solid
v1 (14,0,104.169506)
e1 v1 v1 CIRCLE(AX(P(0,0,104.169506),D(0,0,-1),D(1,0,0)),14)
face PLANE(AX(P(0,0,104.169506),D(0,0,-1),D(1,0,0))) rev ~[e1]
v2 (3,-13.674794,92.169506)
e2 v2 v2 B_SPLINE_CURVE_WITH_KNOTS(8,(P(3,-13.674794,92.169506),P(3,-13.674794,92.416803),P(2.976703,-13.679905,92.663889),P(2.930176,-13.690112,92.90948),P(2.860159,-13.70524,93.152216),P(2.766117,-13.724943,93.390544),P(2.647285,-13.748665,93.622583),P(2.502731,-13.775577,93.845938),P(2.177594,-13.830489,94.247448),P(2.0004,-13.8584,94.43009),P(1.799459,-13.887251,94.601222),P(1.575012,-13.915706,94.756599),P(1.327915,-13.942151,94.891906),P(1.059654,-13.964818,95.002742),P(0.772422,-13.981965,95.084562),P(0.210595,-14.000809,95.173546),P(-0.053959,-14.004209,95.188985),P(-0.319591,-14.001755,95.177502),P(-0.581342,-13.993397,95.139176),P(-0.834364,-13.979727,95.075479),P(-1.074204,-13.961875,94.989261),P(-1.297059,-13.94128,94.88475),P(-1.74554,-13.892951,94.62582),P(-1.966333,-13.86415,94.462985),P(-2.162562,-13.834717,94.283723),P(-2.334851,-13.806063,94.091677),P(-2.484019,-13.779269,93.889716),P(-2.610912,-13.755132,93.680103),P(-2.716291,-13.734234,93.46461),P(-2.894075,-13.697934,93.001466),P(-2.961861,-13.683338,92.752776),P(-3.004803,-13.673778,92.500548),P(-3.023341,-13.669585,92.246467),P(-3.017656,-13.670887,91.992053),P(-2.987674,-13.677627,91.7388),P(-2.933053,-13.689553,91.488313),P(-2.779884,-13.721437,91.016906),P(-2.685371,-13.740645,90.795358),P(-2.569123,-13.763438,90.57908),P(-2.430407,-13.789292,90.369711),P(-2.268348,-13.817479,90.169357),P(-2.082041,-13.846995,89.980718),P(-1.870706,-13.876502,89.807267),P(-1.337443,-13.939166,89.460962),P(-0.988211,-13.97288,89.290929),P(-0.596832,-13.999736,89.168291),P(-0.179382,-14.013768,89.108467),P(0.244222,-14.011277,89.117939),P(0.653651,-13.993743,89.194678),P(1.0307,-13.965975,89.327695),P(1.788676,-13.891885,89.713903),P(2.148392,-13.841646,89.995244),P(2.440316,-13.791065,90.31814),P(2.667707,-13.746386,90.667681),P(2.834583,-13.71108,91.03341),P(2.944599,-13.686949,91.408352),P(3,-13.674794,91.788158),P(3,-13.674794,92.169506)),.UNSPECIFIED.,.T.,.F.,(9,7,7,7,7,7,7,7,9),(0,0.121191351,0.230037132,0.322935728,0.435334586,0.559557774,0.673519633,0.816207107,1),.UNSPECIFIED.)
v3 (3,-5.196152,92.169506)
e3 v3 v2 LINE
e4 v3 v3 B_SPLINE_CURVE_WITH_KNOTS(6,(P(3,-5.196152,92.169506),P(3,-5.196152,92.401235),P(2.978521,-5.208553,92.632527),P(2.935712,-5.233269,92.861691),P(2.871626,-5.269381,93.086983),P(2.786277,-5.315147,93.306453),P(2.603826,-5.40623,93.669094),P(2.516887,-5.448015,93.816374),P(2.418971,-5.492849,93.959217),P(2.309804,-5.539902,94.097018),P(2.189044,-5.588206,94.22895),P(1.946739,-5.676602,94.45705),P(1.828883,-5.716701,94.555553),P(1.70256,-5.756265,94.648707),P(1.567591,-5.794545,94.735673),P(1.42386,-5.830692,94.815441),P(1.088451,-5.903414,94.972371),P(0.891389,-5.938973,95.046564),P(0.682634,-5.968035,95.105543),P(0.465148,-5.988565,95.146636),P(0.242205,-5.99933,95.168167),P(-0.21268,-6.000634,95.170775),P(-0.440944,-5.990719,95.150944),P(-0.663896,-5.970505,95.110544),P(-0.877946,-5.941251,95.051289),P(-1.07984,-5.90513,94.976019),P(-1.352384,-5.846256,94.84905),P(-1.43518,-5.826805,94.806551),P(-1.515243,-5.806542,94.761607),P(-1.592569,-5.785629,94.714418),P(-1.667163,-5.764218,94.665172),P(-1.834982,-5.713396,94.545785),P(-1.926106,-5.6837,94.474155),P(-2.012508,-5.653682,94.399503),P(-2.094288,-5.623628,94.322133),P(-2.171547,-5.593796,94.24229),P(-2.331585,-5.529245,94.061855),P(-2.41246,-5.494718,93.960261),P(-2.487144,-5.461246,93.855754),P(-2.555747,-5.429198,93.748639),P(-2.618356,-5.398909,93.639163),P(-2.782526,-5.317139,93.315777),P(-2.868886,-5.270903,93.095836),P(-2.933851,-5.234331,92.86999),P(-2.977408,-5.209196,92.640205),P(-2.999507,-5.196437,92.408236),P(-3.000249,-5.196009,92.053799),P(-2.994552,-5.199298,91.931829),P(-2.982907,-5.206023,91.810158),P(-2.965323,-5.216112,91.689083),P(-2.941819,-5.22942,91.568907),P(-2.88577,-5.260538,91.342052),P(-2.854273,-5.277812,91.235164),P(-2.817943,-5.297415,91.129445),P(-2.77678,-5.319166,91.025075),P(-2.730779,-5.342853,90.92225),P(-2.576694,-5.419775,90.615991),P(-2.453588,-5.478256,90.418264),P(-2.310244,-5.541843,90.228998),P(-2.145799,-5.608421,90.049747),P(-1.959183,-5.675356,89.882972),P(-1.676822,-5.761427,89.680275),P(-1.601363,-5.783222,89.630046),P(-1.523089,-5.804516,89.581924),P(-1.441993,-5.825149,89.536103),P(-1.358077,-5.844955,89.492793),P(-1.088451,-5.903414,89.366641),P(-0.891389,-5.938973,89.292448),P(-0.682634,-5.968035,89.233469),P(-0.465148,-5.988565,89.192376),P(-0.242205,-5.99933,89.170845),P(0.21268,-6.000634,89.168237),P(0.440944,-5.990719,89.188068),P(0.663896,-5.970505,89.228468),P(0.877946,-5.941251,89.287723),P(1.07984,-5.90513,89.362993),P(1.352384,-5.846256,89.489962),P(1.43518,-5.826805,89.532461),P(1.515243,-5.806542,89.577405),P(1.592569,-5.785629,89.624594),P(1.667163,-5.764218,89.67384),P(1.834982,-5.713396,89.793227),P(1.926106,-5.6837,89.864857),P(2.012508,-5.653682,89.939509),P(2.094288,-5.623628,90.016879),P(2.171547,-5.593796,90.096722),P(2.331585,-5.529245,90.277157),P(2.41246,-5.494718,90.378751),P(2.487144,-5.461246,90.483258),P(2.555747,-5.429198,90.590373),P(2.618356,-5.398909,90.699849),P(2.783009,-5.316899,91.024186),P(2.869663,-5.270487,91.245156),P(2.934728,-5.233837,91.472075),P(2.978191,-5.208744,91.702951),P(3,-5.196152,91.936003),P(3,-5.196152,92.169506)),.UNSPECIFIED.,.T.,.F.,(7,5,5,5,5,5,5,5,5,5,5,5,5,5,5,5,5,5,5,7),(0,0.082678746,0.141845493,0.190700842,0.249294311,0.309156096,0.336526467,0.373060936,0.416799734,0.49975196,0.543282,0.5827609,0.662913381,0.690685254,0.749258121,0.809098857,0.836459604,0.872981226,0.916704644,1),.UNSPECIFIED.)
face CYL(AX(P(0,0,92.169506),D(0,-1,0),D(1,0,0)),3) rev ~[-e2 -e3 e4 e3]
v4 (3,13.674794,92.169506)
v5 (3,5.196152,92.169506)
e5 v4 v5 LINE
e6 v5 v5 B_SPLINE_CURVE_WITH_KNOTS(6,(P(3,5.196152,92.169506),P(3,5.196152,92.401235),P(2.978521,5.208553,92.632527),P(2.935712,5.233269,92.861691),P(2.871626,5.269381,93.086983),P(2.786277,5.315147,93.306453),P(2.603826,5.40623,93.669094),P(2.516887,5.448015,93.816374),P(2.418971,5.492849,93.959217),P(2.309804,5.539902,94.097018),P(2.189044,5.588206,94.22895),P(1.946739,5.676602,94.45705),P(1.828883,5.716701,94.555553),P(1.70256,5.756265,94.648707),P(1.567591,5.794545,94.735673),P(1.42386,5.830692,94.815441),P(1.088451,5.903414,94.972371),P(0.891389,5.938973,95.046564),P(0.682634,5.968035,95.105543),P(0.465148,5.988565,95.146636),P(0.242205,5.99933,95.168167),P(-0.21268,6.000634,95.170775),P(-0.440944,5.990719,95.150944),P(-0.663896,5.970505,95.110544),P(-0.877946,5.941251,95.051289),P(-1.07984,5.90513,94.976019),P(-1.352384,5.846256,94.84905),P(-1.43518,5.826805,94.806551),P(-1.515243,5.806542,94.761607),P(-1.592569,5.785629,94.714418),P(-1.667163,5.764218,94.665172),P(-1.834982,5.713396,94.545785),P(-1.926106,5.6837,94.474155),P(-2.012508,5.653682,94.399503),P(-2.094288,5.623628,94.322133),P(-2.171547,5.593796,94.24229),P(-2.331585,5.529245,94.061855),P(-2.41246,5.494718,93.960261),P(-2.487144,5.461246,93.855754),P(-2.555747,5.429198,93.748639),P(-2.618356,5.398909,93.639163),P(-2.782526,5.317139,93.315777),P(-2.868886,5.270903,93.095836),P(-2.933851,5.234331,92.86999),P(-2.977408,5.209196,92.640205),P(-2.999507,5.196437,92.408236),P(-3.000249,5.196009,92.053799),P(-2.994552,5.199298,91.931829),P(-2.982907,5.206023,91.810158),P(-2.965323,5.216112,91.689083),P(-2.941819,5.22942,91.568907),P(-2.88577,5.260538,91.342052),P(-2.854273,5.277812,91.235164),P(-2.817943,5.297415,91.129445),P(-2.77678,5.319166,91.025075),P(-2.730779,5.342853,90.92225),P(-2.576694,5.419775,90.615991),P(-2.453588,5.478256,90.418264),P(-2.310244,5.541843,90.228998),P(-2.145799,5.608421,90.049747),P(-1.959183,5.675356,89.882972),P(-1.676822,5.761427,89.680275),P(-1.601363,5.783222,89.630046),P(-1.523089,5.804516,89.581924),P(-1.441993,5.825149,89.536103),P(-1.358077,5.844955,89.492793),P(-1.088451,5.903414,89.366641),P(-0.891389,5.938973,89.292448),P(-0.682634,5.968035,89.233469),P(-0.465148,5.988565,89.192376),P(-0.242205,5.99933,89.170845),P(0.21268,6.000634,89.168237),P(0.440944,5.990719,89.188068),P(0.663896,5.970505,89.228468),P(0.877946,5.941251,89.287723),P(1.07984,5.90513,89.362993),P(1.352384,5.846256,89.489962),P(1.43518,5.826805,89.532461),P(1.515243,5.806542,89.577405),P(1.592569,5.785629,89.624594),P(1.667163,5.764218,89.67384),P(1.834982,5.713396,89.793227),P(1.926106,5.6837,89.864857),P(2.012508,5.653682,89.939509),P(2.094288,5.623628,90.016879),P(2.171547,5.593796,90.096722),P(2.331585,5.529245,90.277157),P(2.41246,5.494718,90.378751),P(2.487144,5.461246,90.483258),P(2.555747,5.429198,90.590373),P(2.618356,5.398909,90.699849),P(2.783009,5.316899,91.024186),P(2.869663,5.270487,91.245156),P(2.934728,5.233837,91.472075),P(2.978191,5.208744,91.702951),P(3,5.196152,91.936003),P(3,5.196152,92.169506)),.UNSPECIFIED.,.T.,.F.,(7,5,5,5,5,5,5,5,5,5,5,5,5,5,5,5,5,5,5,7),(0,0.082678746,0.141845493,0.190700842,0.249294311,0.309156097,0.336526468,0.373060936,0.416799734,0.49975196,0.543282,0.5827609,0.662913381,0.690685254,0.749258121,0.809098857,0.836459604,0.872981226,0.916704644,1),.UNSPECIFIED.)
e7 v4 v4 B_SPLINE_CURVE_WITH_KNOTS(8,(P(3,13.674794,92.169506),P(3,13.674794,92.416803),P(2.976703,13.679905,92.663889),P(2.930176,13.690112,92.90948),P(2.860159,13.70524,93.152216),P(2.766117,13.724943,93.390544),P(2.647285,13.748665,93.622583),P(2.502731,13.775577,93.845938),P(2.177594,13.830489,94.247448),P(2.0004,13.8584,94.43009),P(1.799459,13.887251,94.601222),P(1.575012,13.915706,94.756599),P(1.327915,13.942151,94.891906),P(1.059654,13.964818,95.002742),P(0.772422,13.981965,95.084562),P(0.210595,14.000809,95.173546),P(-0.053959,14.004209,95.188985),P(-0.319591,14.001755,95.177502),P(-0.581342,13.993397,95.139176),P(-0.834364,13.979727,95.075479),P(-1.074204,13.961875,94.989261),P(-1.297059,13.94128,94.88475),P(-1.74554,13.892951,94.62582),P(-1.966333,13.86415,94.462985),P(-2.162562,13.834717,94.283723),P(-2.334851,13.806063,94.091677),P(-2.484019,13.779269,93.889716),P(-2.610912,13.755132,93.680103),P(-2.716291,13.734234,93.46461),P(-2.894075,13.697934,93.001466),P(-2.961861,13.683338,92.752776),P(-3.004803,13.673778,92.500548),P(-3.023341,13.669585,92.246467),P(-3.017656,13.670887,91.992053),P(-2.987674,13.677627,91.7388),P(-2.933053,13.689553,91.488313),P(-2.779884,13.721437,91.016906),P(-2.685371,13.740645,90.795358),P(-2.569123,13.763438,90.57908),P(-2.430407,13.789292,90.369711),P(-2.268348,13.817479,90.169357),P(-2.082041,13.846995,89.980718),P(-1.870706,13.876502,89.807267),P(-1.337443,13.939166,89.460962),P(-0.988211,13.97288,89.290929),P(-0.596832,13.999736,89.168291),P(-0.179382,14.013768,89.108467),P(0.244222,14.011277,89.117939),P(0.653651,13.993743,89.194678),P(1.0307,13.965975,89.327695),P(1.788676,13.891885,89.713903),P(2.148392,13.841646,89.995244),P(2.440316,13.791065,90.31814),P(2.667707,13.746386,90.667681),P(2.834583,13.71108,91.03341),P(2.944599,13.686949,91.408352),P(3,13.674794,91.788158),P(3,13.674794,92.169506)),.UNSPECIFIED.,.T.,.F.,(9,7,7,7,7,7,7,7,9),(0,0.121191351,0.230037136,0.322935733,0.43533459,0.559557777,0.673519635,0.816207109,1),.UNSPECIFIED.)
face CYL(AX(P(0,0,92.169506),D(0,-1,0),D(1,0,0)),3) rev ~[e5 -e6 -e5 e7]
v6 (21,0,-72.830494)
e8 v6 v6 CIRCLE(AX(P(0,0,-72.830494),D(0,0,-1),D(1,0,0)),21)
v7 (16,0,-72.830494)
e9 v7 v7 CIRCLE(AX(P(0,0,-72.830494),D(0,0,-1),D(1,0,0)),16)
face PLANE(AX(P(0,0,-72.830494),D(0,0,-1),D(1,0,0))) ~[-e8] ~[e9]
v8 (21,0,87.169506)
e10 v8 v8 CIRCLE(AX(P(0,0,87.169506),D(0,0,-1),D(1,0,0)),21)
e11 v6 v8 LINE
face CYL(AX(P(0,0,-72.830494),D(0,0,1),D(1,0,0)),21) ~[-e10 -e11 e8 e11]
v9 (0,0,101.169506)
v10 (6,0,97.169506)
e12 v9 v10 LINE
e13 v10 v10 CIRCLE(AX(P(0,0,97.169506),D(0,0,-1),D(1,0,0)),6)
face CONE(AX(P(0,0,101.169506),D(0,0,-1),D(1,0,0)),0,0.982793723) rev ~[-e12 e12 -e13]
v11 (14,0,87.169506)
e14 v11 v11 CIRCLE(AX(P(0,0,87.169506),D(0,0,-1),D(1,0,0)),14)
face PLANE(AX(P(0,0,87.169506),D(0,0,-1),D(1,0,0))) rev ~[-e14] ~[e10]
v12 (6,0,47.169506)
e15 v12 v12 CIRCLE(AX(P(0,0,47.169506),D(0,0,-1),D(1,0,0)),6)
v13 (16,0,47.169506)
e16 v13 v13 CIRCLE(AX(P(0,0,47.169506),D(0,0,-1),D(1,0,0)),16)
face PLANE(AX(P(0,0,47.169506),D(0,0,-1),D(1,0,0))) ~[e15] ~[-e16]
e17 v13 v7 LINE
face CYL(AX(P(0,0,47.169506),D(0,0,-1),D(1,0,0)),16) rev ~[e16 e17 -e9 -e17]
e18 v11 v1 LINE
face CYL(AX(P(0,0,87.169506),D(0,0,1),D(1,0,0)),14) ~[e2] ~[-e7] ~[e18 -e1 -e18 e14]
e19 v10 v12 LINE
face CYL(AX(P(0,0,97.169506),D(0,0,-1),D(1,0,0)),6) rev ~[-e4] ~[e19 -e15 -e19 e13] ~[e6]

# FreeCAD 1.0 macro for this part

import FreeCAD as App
import Part
import Sketcher
from FreeCAD import Vector


def add_polygon(sketch, points):
    """Adds a closed chain of lines whose ends are joined by coincident constraints."""
    first, n = sketch.GeometryCount, len(points)
    for a, b in zip(points, points[1:] + points[:1]):
        sketch.addGeometry(Part.LineSegment(App.Vector(*a, 0), App.Vector(*b, 0)), False)
    for i in range(n):
        sketch.addConstraint(Sketcher.Constraint("Coincident", first + i, 2, first + (i + 1) % n, 1))

doc = App.newDocument("Part")
body = doc.addObject("PartDesign::Body", "Body")

# Sketch on XZ plane
sketch1 = body.newObject("Sketcher::SketchObject", "Sketch")
sketch1.AttachmentSupport = (doc.getObject("XZ_Plane"), [""])
sketch1.MapMode = "FlatFace"
add_polygon(sketch1, [(16, 47.2), (16, -72.8), (21, -72.8), (21, 87.2), (14, 87.2), (14, 104.2), (0, 104.2), (0, 101.2), (6, 97.2), (6, 47.2)])  # lines 0-9
sketch1.addConstraint(Sketcher.Constraint("Vertical", 0))
sketch1.addConstraint(Sketcher.Constraint("Horizontal", 1))
sketch1.addConstraint(Sketcher.Constraint("Vertical", 2))
sketch1.addConstraint(Sketcher.Constraint("Horizontal", 3))
sketch1.addConstraint(Sketcher.Constraint("Vertical", 4))
sketch1.addConstraint(Sketcher.Constraint("Horizontal", 5))
sketch1.addConstraint(Sketcher.Constraint("Vertical", 6))
sketch1.addConstraint(Sketcher.Constraint("Vertical", 8))
sketch1.addConstraint(Sketcher.Constraint("Horizontal", 9))
sketch1.addConstraint(Sketcher.Constraint("PointOnObject", 5, 2, -2))
sketch1.addConstraint(Sketcher.Constraint("DistanceX", 1, 1, 1, 2, 5.0))
sketch1.addConstraint(Sketcher.Constraint("DistanceX", 3, 2, 3, 1, 7.0))
sketch1.addConstraint(Sketcher.Constraint("DistanceX", 5, 2, 5, 1, 14.0))
sketch1.addConstraint(Sketcher.Constraint("DistanceX", 9, 1, 9, 2, 10.0))
sketch1.addConstraint(Sketcher.Constraint("DistanceY", 0, 2, 0, 1, 120.0))
sketch1.addConstraint(Sketcher.Constraint("DistanceY", 2, 1, 2, 2, 160.0))
sketch1.addConstraint(Sketcher.Constraint("DistanceY", 4, 1, 4, 2, 17.0))
sketch1.addConstraint(Sketcher.Constraint("DistanceY", 6, 2, 6, 1, 3.0))
sketch1.addConstraint(Sketcher.Constraint("DistanceY", 8, 2, 8, 1, 50.0))
sketch1.addConstraint(Sketcher.Constraint("DistanceY", 0, 2, -1, 1, 72.830494))
revolution = body.newObject("PartDesign::Revolution", "Revolution")
revolution.Profile = sketch1
revolution.ReferenceAxis = (sketch1, ["V_Axis"])
revolution.Angle = 360

# Sketch on XZ plane
sketch2 = body.newObject("Sketcher::SketchObject", "Sketch001")
sketch2.AttachmentSupport = (doc.getObject("XZ_Plane"), [""])
sketch2.MapMode = "FlatFace"
sketch2.addGeometry(Part.Circle(Vector(0, 92.2, 0), Vector(0, 0, 1), 3), False)
sketch2.addConstraint(Sketcher.Constraint("PointOnObject", 0, 3, -2))
sketch2.addConstraint(Sketcher.Constraint("Diameter", 0, 6.0))
sketch2.addConstraint(Sketcher.Constraint("DistanceY", -1, 1, 0, 3, 92.169506))
pocket1 = body.newObject("PartDesign::Pocket", "Pocket")
pocket1.Profile = sketch2
pocket1.Length = 50
pocket1.Midplane = True

doc.recompute()
